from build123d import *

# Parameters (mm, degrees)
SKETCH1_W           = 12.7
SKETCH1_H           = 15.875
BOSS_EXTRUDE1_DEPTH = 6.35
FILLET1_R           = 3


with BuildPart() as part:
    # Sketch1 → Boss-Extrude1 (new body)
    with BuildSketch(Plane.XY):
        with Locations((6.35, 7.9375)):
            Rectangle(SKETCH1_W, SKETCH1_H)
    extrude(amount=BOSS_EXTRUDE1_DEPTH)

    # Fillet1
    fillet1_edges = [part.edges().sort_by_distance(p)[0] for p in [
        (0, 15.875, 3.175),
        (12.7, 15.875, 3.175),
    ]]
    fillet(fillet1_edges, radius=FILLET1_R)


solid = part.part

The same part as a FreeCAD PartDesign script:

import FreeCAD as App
import Part
import Sketcher
from FreeCAD import Vector
Q = App.Units.Quantity


def edges_at(feature, points):
    """Names of the edges that pass closest to the given points."""
    edges = feature.Shape.Edges
    near = lambda p: min(range(len(edges)), key=lambda i: edges[i].distToShape(Part.Vertex(*p))[0])
    return sorted({f"Edge{near(p) + 1}" for p in points})

doc = App.newDocument("Part")
body = doc.addObject("PartDesign::Body", "Body")

# Sketch on XY plane
sketch1 = doc.addObject("Sketcher::SketchObject", "Sketch")
body.addObject(sketch1)
sketch1.AttachmentSupport = (doc.XY_Plane, [""])
sketch1.MapMode = "FlatFace"
sketch1.addGeometry([
    Part.LineSegment(Vector(0, 15.875, 0), Vector(0, 0, 0)),
    Part.LineSegment(Vector(0, 0, 0), Vector(12.7, 0, 0)),
    Part.LineSegment(Vector(12.7, 0, 0), Vector(12.7, 15.875, 0)),
    Part.LineSegment(Vector(12.7, 15.875, 0), Vector(0, 15.875, 0)),
], False)
sketch1.addConstraint([
    Sketcher.Constraint("Coincident", 0, 2, 1, 1),
    Sketcher.Constraint("Coincident", 1, 2, 2, 1),
    Sketcher.Constraint("Coincident", 2, 2, 3, 1),
    Sketcher.Constraint("Coincident", 3, 2, 0, 1),
    Sketcher.Constraint("Vertical", 0),
    Sketcher.Constraint("Horizontal", 1),
    Sketcher.Constraint("Vertical", 2),
    Sketcher.Constraint("Horizontal", 3),
    Sketcher.Constraint("Coincident", 0, 2, -1, 1),
    Sketcher.Constraint("DistanceX", 1, 1, 1, 2, Q("0.5 in")),
    Sketcher.Constraint("DistanceY", 0, 2, 0, 1, Q("0.625 in")),
])
pad1 = doc.addObject("PartDesign::Pad", "Pad")
body.addObject(pad1)
pad1.Profile = sketch1
pad1.Length = Q("0.25 in")
doc.recompute()

fillet = doc.addObject("PartDesign::Fillet", "Fillet")
body.addObject(fillet)
fillet.Base = (pad1, edges_at(pad1, [(0, 15.875, 3.175), (12.7, 15.875, 3.175)]))
fillet.Radius = 3

doc.recompute()
